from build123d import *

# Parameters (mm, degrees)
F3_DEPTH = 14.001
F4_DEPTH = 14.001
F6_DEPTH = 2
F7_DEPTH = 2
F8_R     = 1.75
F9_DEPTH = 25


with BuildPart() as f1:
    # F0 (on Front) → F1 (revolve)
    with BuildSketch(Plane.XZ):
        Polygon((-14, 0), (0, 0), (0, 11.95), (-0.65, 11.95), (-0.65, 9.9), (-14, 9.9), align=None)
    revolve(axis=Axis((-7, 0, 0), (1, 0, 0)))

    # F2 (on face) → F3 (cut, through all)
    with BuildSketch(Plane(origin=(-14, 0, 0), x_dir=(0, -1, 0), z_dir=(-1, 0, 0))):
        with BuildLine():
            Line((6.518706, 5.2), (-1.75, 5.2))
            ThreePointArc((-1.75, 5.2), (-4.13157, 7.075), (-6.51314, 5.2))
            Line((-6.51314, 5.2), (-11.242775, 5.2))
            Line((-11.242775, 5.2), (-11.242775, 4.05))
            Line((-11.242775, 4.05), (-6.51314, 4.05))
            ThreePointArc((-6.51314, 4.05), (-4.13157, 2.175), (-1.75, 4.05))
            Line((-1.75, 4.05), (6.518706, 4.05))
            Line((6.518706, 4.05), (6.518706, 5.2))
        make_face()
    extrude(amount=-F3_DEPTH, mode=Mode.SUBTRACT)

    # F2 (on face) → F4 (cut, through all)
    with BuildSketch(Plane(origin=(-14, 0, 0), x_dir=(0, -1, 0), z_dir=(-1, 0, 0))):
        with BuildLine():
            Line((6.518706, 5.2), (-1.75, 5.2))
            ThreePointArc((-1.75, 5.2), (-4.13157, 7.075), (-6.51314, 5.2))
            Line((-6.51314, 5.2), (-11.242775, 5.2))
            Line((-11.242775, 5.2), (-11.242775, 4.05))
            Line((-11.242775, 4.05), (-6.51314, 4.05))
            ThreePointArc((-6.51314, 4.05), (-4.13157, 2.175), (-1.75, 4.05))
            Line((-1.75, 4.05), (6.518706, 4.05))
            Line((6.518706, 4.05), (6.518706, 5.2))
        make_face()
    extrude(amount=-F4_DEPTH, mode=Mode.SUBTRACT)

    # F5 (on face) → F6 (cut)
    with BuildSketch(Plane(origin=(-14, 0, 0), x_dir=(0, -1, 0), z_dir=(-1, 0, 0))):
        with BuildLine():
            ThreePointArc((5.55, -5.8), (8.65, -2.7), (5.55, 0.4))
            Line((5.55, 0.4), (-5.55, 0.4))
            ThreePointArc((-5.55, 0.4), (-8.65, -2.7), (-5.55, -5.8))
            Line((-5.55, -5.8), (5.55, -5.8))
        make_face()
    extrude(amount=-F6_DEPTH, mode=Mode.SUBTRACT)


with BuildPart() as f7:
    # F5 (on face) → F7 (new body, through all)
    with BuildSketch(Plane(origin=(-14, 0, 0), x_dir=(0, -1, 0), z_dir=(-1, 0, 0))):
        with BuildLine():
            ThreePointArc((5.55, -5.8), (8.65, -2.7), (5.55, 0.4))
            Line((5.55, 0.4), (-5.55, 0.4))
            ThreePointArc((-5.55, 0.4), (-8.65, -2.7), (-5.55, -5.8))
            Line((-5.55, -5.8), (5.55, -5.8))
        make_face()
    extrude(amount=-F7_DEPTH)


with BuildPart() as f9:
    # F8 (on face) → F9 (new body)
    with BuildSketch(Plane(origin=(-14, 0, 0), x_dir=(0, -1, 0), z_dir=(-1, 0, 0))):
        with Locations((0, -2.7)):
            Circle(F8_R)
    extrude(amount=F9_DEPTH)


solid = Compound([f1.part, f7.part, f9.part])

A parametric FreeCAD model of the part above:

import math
import FreeCAD as App
import Part
import Sketcher
Q = App.Units.Quantity

doc = App.newDocument("Part")
params = doc.addObject("Spreadsheet::Sheet", "Params")
for row, (alias, value) in enumerate([
    ("sketch1_width", "14 mm"),
    ("sketch1_height", "9.9 mm"),
    ("sketch1_width2", "0.65 mm"),
    ("sketch1_height2", "11.95 mm"),
    ("revolution_angle", "360 deg"),
    ("sketch2_radius", "2.45 mm"),
    ("sketch2_height", "1.15 mm"),
    ("sketch3_radius", "2.45 mm"),
    ("sketch3_height", "1.15 mm"),
    ("sketch4_radius", "3.1 mm"),
    ("sketch4_width", "11.1 mm"),
    ("pocket3_length", "2 mm"),
    ("sketch5_radius", "3.1 mm"),
    ("sketch5_width", "11.1 mm"),
    ("pad1_length", "2 mm"),
    ("sketch6_diameter", "3.5 mm"),
    ("pad2_length", "25 mm"),
], start=1):
    params.set(f"A{row}", alias)
    params.set(f"B{row}", "=" + value)
    params.setAlias(f"B{row}", alias)

body = doc.addObject("PartDesign::Body", "Body")

# Sketch on XZ plane
sketch1 = doc.addObject("Sketcher::SketchObject", "Sketch")
body.addObject(sketch1)
sketch1.AttachmentSupport = (doc.XZ_Plane, [""])
sketch1.MapMode = "FlatFace"
sketch1.addGeometry([
    Part.LineSegment(App.Vector(-14, 0, 0), App.Vector(0, 0, 0)),  # 0
    Part.LineSegment(App.Vector(0, 0, 0), App.Vector(0, 11.95, 0)),  # 1
    Part.LineSegment(App.Vector(0, 11.95, 0), App.Vector(-0.65, 11.95, 0)),  # 2
    Part.LineSegment(App.Vector(-0.65, 11.95, 0), App.Vector(-0.65, 9.9, 0)),  # 3
    Part.LineSegment(App.Vector(-0.65, 9.9, 0), App.Vector(-14, 9.9, 0)),  # 4
    Part.LineSegment(App.Vector(-14, 9.9, 0), App.Vector(-14, 0, 0)),  # 5
], False)
sketch1.addConstraint([
    Sketcher.Constraint("Coincident", 0, 2, 1, 1),
    Sketcher.Constraint("Coincident", 1, 2, 2, 1),
    Sketcher.Constraint("Coincident", 2, 2, 3, 1),
    Sketcher.Constraint("Coincident", 3, 2, 4, 1),
    Sketcher.Constraint("Coincident", 4, 2, 5, 1),
    Sketcher.Constraint("Coincident", 5, 2, 0, 1),
    Sketcher.Constraint("Horizontal", 0),
    Sketcher.Constraint("Vertical", 1),
    Sketcher.Constraint("Horizontal", 2),
    Sketcher.Constraint("Vertical", 3),
    Sketcher.Constraint("Horizontal", 4),
    Sketcher.Constraint("Vertical", 5),
    Sketcher.Constraint("Coincident", 0, 2, -1, 1),
    Sketcher.Constraint("DistanceX", 0, 1, 0, 2, Q("14 mm")),
    Sketcher.Constraint("DistanceY", 5, 2, 5, 1, Q("9.9 mm")),
    Sketcher.Constraint("DistanceX", 2, 2, 2, 1, Q("0.65 mm")),
    Sketcher.Constraint("DistanceY", 1, 1, 1, 2, Q("11.95 mm")),
])
sketch1.setExpression("Constraints[13]", "Params.sketch1_width")
sketch1.setExpression("Constraints[14]", "Params.sketch1_height")
sketch1.setExpression("Constraints[15]", "Params.sketch1_width2")
sketch1.setExpression("Constraints[16]", "Params.sketch1_height2")
revolution = doc.addObject("PartDesign::Revolution", "Revolution")
body.addObject(revolution)
revolution.Profile = sketch1
revolution.ReferenceAxis = (sketch1, ["H_Axis"])
revolution.setExpression("Angle", "Params.revolution_angle")

# Sketch on YZ plane
sketch2 = doc.addObject("Sketcher::SketchObject", "Sketch001")
body.addObject(sketch2)
sketch2.AttachmentSupport = (doc.YZ_Plane, [""])
sketch2.MapMode = "FlatFace"
sketch2.AttachmentOffset = App.Placement(App.Vector(0, 0, -14), App.Rotation())
sketch2.addGeometry([
    Part.LineSegment(App.Vector(-6.518706, 5.2, 0), App.Vector(1.75, 5.2, 0)),  # 0
    Part.ArcOfCircle(Part.Circle(App.Vector(4.13157, 4.625, 0), App.Vector(0, 0, 1), 2.45), math.radians(13.573582), math.radians(166.426418)),  # 1
    Part.LineSegment(App.Vector(6.51314, 5.2, 0), App.Vector(11.242775, 5.2, 0)),  # 2
    Part.LineSegment(App.Vector(11.242775, 5.2, 0), App.Vector(11.242775, 4.05, 0)),  # 3
    Part.LineSegment(App.Vector(11.242775, 4.05, 0), App.Vector(6.51314, 4.05, 0)),  # 4
    Part.ArcOfCircle(Part.Circle(App.Vector(4.13157, 4.625, 0), App.Vector(0, 0, 1), 2.45), math.radians(-166.426418), math.radians(-13.573582)),  # 5
    Part.LineSegment(App.Vector(1.75, 4.05, 0), App.Vector(-6.518706, 4.05, 0)),  # 6
    Part.LineSegment(App.Vector(-6.518706, 4.05, 0), App.Vector(-6.518706, 5.2, 0)),  # 7
], False)
sketch2.addConstraint([
    Sketcher.Constraint("Coincident", 0, 2, 1, 2),
    Sketcher.Constraint("Coincident", 1, 1, 2, 1),
    Sketcher.Constraint("Coincident", 2, 2, 3, 1),
    Sketcher.Constraint("Coincident", 3, 2, 4, 1),
    Sketcher.Constraint("Coincident", 4, 2, 5, 2),
    Sketcher.Constraint("Coincident", 5, 1, 6, 1),
    Sketcher.Constraint("Coincident", 6, 2, 7, 1),
    Sketcher.Constraint("Coincident", 7, 2, 0, 1),
    Sketcher.Constraint("Horizontal", 0),
    Sketcher.Constraint("Horizontal", 2),
    Sketcher.Constraint("Vertical", 3),
    Sketcher.Constraint("Horizontal", 4),
    Sketcher.Constraint("Horizontal", 6),
    Sketcher.Constraint("Vertical", 7),
    Sketcher.Constraint("Coincident", 5, 3, 1, 3),
    Sketcher.Constraint("Equal", 1, 5),
    Sketcher.Constraint("Horizontal", 0, 2, 1, 1),
    Sketcher.Constraint("Horizontal", 4, 2, 5, 1),
    Sketcher.Constraint("Vertical", 1, 1, 4, 2),
    Sketcher.Constraint("Radius", 1, Q("2.45 mm")),
    Sketcher.Constraint("DistanceY", 3, 2, 3, 1, Q("1.15 mm")),
    Sketcher.Constraint("DistanceY", -1, 1, 0, 2, Q("5.2 mm")),
    Sketcher.Constraint("DistanceX", -1, 1, 0, 2, Q("1.75 mm")),
    Sketcher.Constraint("DistanceX", 0, 1, 0, 2, Q("8.268706 mm")),
    Sketcher.Constraint("DistanceX", 2, 1, 2, 2, Q("4.729635 mm")),
])
sketch2.setExpression("Constraints[19]", "Params.sketch2_radius")
sketch2.setExpression("Constraints[20]", "Params.sketch2_height")
pocket1 = doc.addObject("PartDesign::Pocket", "Pocket")
body.addObject(pocket1)
pocket1.Profile = sketch2
pocket1.Type = "ThroughAll"
pocket1.Reversed = True

# Sketch on YZ plane
sketch3 = doc.addObject("Sketcher::SketchObject", "Sketch002")
body.addObject(sketch3)
sketch3.AttachmentSupport = (doc.YZ_Plane, [""])
sketch3.MapMode = "FlatFace"
sketch3.AttachmentOffset = App.Placement(App.Vector(0, 0, -14), App.Rotation())
sketch3.addGeometry([
    Part.LineSegment(App.Vector(-6.518706, 5.2, 0), App.Vector(1.75, 5.2, 0)),  # 0
    Part.ArcOfCircle(Part.Circle(App.Vector(4.13157, 4.625, 0), App.Vector(0, 0, 1), 2.45), math.radians(13.573582), math.radians(166.426418)),  # 1
    Part.LineSegment(App.Vector(6.51314, 5.2, 0), App.Vector(11.242775, 5.2, 0)),  # 2
    Part.LineSegment(App.Vector(11.242775, 5.2, 0), App.Vector(11.242775, 4.05, 0)),  # 3
    Part.LineSegment(App.Vector(11.242775, 4.05, 0), App.Vector(6.51314, 4.05, 0)),  # 4
    Part.ArcOfCircle(Part.Circle(App.Vector(4.13157, 4.625, 0), App.Vector(0, 0, 1), 2.45), math.radians(-166.426418), math.radians(-13.573582)),  # 5
    Part.LineSegment(App.Vector(1.75, 4.05, 0), App.Vector(-6.518706, 4.05, 0)),  # 6
    Part.LineSegment(App.Vector(-6.518706, 4.05, 0), App.Vector(-6.518706, 5.2, 0)),  # 7
], False)
sketch3.addConstraint([
    Sketcher.Constraint("Coincident", 0, 2, 1, 2),
    Sketcher.Constraint("Coincident", 1, 1, 2, 1),
    Sketcher.Constraint("Coincident", 2, 2, 3, 1),
    Sketcher.Constraint("Coincident", 3, 2, 4, 1),
    Sketcher.Constraint("Coincident", 4, 2, 5, 2),
    Sketcher.Constraint("Coincident", 5, 1, 6, 1),
    Sketcher.Constraint("Coincident", 6, 2, 7, 1),
    Sketcher.Constraint("Coincident", 7, 2, 0, 1),
    Sketcher.Constraint("Horizontal", 0),
    Sketcher.Constraint("Horizontal", 2),
    Sketcher.Constraint("Vertical", 3),
    Sketcher.Constraint("Horizontal", 4),
    Sketcher.Constraint("Horizontal", 6),
    Sketcher.Constraint("Vertical", 7),
    Sketcher.Constraint("Coincident", 5, 3, 1, 3),
    Sketcher.Constraint("Equal", 1, 5),
    Sketcher.Constraint("Horizontal", 0, 2, 1, 1),
    Sketcher.Constraint("Horizontal", 4, 2, 5, 1),
    Sketcher.Constraint("Vertical", 1, 1, 4, 2),
    Sketcher.Constraint("Radius", 1, Q("2.45 mm")),
    Sketcher.Constraint("DistanceY", 3, 2, 3, 1, Q("1.15 mm")),
    Sketcher.Constraint("DistanceY", -1, 1, 0, 2, Q("5.2 mm")),
    Sketcher.Constraint("DistanceX", -1, 1, 0, 2, Q("1.75 mm")),
    Sketcher.Constraint("DistanceX", 0, 1, 0, 2, Q("8.268706 mm")),
    Sketcher.Constraint("DistanceX", 2, 1, 2, 2, Q("4.729635 mm")),
])
sketch3.setExpression("Constraints[19]", "Params.sketch3_radius")
sketch3.setExpression("Constraints[20]", "Params.sketch3_height")
pocket2 = doc.addObject("PartDesign::Pocket", "Pocket001")
body.addObject(pocket2)
pocket2.Profile = sketch3
pocket2.Type = "ThroughAll"
pocket2.Reversed = True

# Sketch on YZ plane
sketch4 = doc.addObject("Sketcher::SketchObject", "Sketch003")
body.addObject(sketch4)
sketch4.AttachmentSupport = (doc.YZ_Plane, [""])
sketch4.MapMode = "FlatFace"
sketch4.AttachmentOffset = App.Placement(App.Vector(0, 0, -14), App.Rotation())
sketch4.addGeometry([
    Part.ArcOfCircle(Part.Circle(App.Vector(-5.55, -2.7, 0), App.Vector(0, 0, 1), 3.1), math.radians(90), math.radians(270)),
    Part.LineSegment(App.Vector(-5.55, 0.4, 0), App.Vector(5.55, 0.4, 0)),
    Part.ArcOfCircle(Part.Circle(App.Vector(5.55, -2.7, 0), App.Vector(0, 0, 1), 3.1), math.radians(-90), math.radians(90)),
    Part.LineSegment(App.Vector(5.55, -5.8, 0), App.Vector(-5.55, -5.8, 0)),
], False)
sketch4.addConstraint([
    Sketcher.Constraint("Tangent", 0, 1, 1, 1),
    Sketcher.Constraint("Tangent", 1, 2, 2, 2),
    Sketcher.Constraint("Tangent", 2, 1, 3, 1),
    Sketcher.Constraint("Tangent", 3, 2, 0, 2),
    Sketcher.Constraint("Horizontal", 1),
    Sketcher.Constraint("Horizontal", 3),
    Sketcher.Constraint("Radius", 0, Q("3.1 mm")),
    Sketcher.Constraint("DistanceX", 1, 1, 1, 2, Q("11.1 mm")),
    Sketcher.Constraint("DistanceY", 0, 3, -1, 1, Q("2.7 mm")),
    Sketcher.Constraint("DistanceX", 0, 3, -1, 1, Q("5.55 mm")),
])
sketch4.setExpression("Constraints[6]", "Params.sketch4_radius")
sketch4.setExpression("Constraints[7]", "Params.sketch4_width")
pocket3 = doc.addObject("PartDesign::Pocket", "Pocket002")
body.addObject(pocket3)
pocket3.Profile = sketch4
pocket3.setExpression("Length", "Params.pocket3_length")
pocket3.Reversed = True
body2 = doc.addObject("PartDesign::Body", "Body001")

# Sketch on YZ plane
sketch5 = doc.addObject("Sketcher::SketchObject", "Sketch004")
body2.addObject(sketch5)
sketch5.AttachmentSupport = (doc.getObject("YZ_Plane001"), [""])
sketch5.MapMode = "FlatFace"
sketch5.AttachmentOffset = App.Placement(App.Vector(0, 0, -14), App.Rotation())
sketch5.addGeometry([
    Part.ArcOfCircle(Part.Circle(App.Vector(-5.55, -2.7, 0), App.Vector(0, 0, 1), 3.1), math.radians(90), math.radians(270)),
    Part.LineSegment(App.Vector(-5.55, 0.4, 0), App.Vector(5.55, 0.4, 0)),
    Part.ArcOfCircle(Part.Circle(App.Vector(5.55, -2.7, 0), App.Vector(0, 0, 1), 3.1), math.radians(-90), math.radians(90)),
    Part.LineSegment(App.Vector(5.55, -5.8, 0), App.Vector(-5.55, -5.8, 0)),
], False)
sketch5.addConstraint([
    Sketcher.Constraint("Tangent", 0, 1, 1, 1),
    Sketcher.Constraint("Tangent", 1, 2, 2, 2),
    Sketcher.Constraint("Tangent", 2, 1, 3, 1),
    Sketcher.Constraint("Tangent", 3, 2, 0, 2),
    Sketcher.Constraint("Horizontal", 1),
    Sketcher.Constraint("Horizontal", 3),
    Sketcher.Constraint("Radius", 0, Q("3.1 mm")),
    Sketcher.Constraint("DistanceX", 1, 1, 1, 2, Q("11.1 mm")),
    Sketcher.Constraint("DistanceY", 0, 3, -1, 1, Q("2.7 mm")),
    Sketcher.Constraint("DistanceX", 0, 3, -1, 1, Q("5.55 mm")),
])
sketch5.setExpression("Constraints[6]", "Params.sketch5_radius")
sketch5.setExpression("Constraints[7]", "Params.sketch5_width")
pad1 = doc.addObject("PartDesign::Pad", "Pad")
body2.addObject(pad1)
pad1.Profile = sketch5
pad1.setExpression("Length", "Params.pad1_length")
body3 = doc.addObject("PartDesign::Body", "Body002")

# Sketch on YZ plane
sketch6 = doc.addObject("Sketcher::SketchObject", "Sketch005")
body3.addObject(sketch6)
sketch6.AttachmentSupport = (doc.getObject("YZ_Plane002"), [""])
sketch6.MapMode = "FlatFace"
sketch6.AttachmentOffset = App.Placement(App.Vector(0, 0, -14), App.Rotation())
sketch6.addGeometry(Part.Circle(App.Vector(0, -2.7, 0), App.Vector(0, 0, 1), 1.75), False)
sketch6.addConstraint([
    Sketcher.Constraint("PointOnObject", 0, 3, -2),
    Sketcher.Constraint("Diameter", 0, Q("3.5 mm")),
    Sketcher.Constraint("DistanceY", 0, 3, -1, 1, Q("2.7 mm")),
])
sketch6.setExpression("Constraints[1]", "Params.sketch6_diameter")
pad2 = doc.addObject("PartDesign::Pad", "Pad001")
body3.addObject(pad2)
pad2.Profile = sketch6
pad2.setExpression("Length", "Params.pad2_length")
pad2.Reversed = True

doc.recompute()
